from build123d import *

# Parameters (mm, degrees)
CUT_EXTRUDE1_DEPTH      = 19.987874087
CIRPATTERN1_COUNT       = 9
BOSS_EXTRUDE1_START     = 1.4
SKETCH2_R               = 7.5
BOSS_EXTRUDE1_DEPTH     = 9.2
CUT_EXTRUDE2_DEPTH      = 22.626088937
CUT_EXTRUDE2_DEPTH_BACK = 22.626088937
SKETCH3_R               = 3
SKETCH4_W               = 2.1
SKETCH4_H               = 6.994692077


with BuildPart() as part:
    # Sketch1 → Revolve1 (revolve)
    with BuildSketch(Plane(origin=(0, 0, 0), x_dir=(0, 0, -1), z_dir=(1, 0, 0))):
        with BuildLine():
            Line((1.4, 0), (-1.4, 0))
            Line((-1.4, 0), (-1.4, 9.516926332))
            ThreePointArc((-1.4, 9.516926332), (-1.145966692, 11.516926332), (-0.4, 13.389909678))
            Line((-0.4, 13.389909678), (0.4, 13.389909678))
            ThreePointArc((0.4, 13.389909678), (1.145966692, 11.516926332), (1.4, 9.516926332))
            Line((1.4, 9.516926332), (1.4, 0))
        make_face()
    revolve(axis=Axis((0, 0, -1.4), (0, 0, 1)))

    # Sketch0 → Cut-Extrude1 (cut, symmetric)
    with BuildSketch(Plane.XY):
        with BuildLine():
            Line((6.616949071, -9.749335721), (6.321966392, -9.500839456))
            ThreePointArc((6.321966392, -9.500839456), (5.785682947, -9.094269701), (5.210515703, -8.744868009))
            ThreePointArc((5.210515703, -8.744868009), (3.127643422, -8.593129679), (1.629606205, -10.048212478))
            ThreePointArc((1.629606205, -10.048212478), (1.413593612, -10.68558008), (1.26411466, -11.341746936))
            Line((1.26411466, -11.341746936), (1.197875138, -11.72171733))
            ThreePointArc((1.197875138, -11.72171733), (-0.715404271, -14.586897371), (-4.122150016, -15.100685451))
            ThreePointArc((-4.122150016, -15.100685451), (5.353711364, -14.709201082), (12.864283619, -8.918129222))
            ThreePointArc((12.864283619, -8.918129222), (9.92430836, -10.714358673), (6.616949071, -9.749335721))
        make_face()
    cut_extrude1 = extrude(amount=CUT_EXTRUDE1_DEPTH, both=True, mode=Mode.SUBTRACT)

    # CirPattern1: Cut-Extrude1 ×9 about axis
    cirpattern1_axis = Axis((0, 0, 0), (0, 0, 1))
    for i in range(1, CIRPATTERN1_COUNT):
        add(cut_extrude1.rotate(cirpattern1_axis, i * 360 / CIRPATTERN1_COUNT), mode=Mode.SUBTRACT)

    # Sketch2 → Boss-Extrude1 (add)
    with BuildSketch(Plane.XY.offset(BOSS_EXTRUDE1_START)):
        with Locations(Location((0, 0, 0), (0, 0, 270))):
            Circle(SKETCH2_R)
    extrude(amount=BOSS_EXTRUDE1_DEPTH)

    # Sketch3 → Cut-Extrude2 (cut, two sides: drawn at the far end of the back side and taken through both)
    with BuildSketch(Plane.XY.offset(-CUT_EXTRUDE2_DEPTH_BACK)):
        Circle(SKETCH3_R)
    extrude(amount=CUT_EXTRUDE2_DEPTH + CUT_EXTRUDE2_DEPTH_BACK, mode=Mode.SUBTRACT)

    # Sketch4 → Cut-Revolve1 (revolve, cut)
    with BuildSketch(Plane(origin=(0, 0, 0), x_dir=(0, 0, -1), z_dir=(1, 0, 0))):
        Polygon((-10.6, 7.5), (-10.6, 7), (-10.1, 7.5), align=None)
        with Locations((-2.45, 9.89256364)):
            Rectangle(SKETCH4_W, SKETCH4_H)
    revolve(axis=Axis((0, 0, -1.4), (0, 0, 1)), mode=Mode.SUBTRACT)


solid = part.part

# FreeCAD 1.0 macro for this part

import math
import FreeCAD as App
import Part
import Sketcher


def add_polygon(sketch, points):
    """Adds a closed chain of lines whose ends are joined by coincident constraints."""
    first, n = sketch.GeometryCount, len(points)
    for a, b in zip(points, points[1:] + points[:1]):
        sketch.addGeometry(Part.LineSegment(App.Vector(*a, 0), App.Vector(*b, 0)), False)
    for i in range(n):
        sketch.addConstraint(Sketcher.Constraint("Coincident", first + i, 2, first + (i + 1) % n, 1))

doc = App.newDocument("Part")
body = doc.addObject("PartDesign::Body", "Body")

sketch1 = body.newObject("Sketcher::SketchObject", "Sketch")
sketch1.AttachmentSupport = (doc.getObject("YZ_Plane"), [""])
sketch1.MapMode = "FlatFace"
sketch1.addGeometry(Part.LineSegment(App.Vector(0, 1.4, 0), App.Vector(0, -1.4, 0)), False)
sketch1.addGeometry(Part.LineSegment(App.Vector(0, -1.4, 0), App.Vector(9.516926, -1.4, 0)), False)
sketch1.addGeometry(Part.ArcOfCircle(Part.Circle(App.Vector(9.516926, 6.6, 0), App.Vector(0, 0, 1), 8), math.radians(-90), math.radians(-61.044976)), False)
sketch1.addGeometry(Part.LineSegment(App.Vector(13.38991, -0.4, 0), App.Vector(13.38991, 0.4, 0)), False)
sketch1.addGeometry(Part.ArcOfCircle(Part.Circle(App.Vector(9.516926, -6.6, 0), App.Vector(0, 0, 1), 8), math.radians(61.044976), math.radians(90)), False)
sketch1.addGeometry(Part.LineSegment(App.Vector(9.516926, 1.4, 0), App.Vector(0, 1.4, 0)), False)
sketch1.addConstraint(Sketcher.Constraint("Coincident", 0, 2, 1, 1))
sketch1.addConstraint(Sketcher.Constraint("Tangent", 1, 2, 2, 1))
sketch1.addConstraint(Sketcher.Constraint("Coincident", 2, 2, 3, 1))
sketch1.addConstraint(Sketcher.Constraint("Coincident", 3, 2, 4, 1))
sketch1.addConstraint(Sketcher.Constraint("Tangent", 4, 2, 5, 1))
sketch1.addConstraint(Sketcher.Constraint("Coincident", 5, 2, 0, 1))
sketch1.addConstraint(Sketcher.Constraint("Vertical", 0))
sketch1.addConstraint(Sketcher.Constraint("Horizontal", 1))
sketch1.addConstraint(Sketcher.Constraint("Vertical", 3))
sketch1.addConstraint(Sketcher.Constraint("Horizontal", 5))
sketch1.addConstraint(Sketcher.Constraint("Equal", 2, 4))
sketch1.addConstraint(Sketcher.Constraint("Symmetric", 0, 2, 5, 2, -1, 1))
sketch1.addConstraint(Sketcher.Constraint("Vertical", 2, 3, 4, 3))
sketch1.addConstraint(Sketcher.Constraint("Radius", 2, 8.0))
sketch1.addConstraint(Sketcher.Constraint("DistanceY", 0, 2, 0, 1, 2.8))
sketch1.addConstraint(Sketcher.Constraint("DistanceY", 3, 1, 3, 2, 0.8))
sketch1.addConstraint(Sketcher.Constraint("DistanceX", 1, 1, 1, 2, 9.516926))
revolution = body.newObject("PartDesign::Revolution", "Revolution")
revolution.Profile = sketch1
revolution.ReferenceAxis = (sketch1, ["V_Axis"])
revolution.Angle = 360

sketch2 = body.newObject("Sketcher::SketchObject", "Sketch001")
sketch2.AttachmentSupport = (doc.getObject("XY_Plane"), [""])
sketch2.MapMode = "FlatFace"
sketch2.addGeometry(Part.LineSegment(App.Vector(6.616949, -9.749336, 0), App.Vector(6.321966, -9.500839, 0)), False)
sketch2.addGeometry(Part.ArcOfCircle(Part.Circle(App.Vector(2.101599, -14.510715, 0), App.Vector(0, 0, 1), 6.5506), math.radians(49.888889), math.radians(61.666667)), False)
sketch2.addGeometry(Part.ArcOfCircle(Part.Circle(App.Vector(4, -10.98991, 0), App.Vector(0, 0, 1), 2.5506), math.radians(61.666667), math.radians(158.333333)), False)
sketch2.addGeometry(Part.ArcOfCircle(Part.Circle(App.Vector(7.71739, -12.466734, 0), App.Vector(0, 0, 1), 6.5506), math.radians(158.333333), math.radians(170.111111)), False)
sketch2.addGeometry(Part.LineSegment(App.Vector(1.264115, -11.341747, 0), App.Vector(1.197875, -11.721717, 0)), False)
sketch2.addGeometry(Part.ArcOfCircle(Part.Circle(App.Vector(-3, -10.98991, 0), App.Vector(0, 0, 1), 4.261185), math.radians(-105.268472), math.radians(-9.888889)), False)
sketch2.addGeometry(Part.ArcOfCircle(Part.Circle(App.Vector(0, 0, 0), App.Vector(0, 0, 1), 15.653205), math.radians(-105.268472), math.radians(-34.731528)), False)
sketch2.addGeometry(Part.ArcOfCircle(Part.Circle(App.Vector(9.362311, -6.490396, 0), App.Vector(0, 0, 1), 4.261185), math.radians(-130.111111), math.radians(-34.731528)), False)
sketch2.addConstraint(Sketcher.Constraint("Tangent", 0, 2, 1, 1))
sketch2.addConstraint(Sketcher.Constraint("Tangent", 1, 2, 2, 1))
sketch2.addConstraint(Sketcher.Constraint("Tangent", 2, 2, 3, 1))
sketch2.addConstraint(Sketcher.Constraint("Tangent", 3, 2, 4, 1))
sketch2.addConstraint(Sketcher.Constraint("Tangent", 4, 2, 5, 2))
sketch2.addConstraint(Sketcher.Constraint("Tangent", 5, 1, 6, 1))
sketch2.addConstraint(Sketcher.Constraint("Tangent", 6, 2, 7, 2))
sketch2.addConstraint(Sketcher.Constraint("Tangent", 7, 1, 0, 1))
sketch2.addConstraint(Sketcher.Constraint("Coincident", 6, 3, -1, 1))
sketch2.addConstraint(Sketcher.Constraint("Equal", 1, 3))
sketch2.addConstraint(Sketcher.Constraint("Equal", 5, 7))
sketch2.addConstraint(Sketcher.Constraint("Horizontal", 2, 3, 5, 3))
sketch2.addConstraint(Sketcher.Constraint("Equal", 0, 4))
sketch2.addConstraint(Sketcher.Constraint("DistanceX", -1, 1, 2, 3, 4.0))
sketch2.addConstraint(Sketcher.Constraint("DistanceX", 5, 3, -1, 1, 3.0))
sketch2.addConstraint(Sketcher.Constraint("Radius", 1, 6.5506))
sketch2.addConstraint(Sketcher.Constraint("Radius", 2, 2.5506))
sketch2.addConstraint(Sketcher.Constraint("Radius", 5, 4.261185))
sketch2.addConstraint(Sketcher.Constraint("Radius", 6, 15.653205))
sketch2.addConstraint(Sketcher.Constraint("Distance", 0, 0.385701))
sketch2.addConstraint(Sketcher.Constraint("DistanceX", -1, 1, 1, 3, 2.101599))
pocket1 = body.newObject("PartDesign::Pocket", "Pocket")
pocket1.Profile = sketch2
pocket1.Length = 39.975748
pocket1.Midplane = True
doc.recompute()

polarpattern = body.newObject("PartDesign::PolarPattern", "PolarPattern")
polarpattern.Originals = [pocket1]
polarpattern.Axis = (doc.getObject("Z_Axis"), [""])
polarpattern.Angle = 360
polarpattern.Occurrences = 9
body.Tip = polarpattern

sketch3 = body.newObject("Sketcher::SketchObject", "Sketch002")
sketch3.AttachmentSupport = (doc.getObject("XY_Plane"), [""])
sketch3.MapMode = "FlatFace"
sketch3.AttachmentOffset = App.Placement(App.Vector(0, 0, 1.4), App.Rotation())
sketch3.addGeometry(Part.Circle(App.Vector(0, 0, 0), App.Vector(0, 0, 1), 7.5), False)
sketch3.addConstraint(Sketcher.Constraint("Coincident", 0, 3, -1, 1))
sketch3.addConstraint(Sketcher.Constraint("Diameter", 0, 15.0))
pad1 = body.newObject("PartDesign::Pad", "Pad")
pad1.Profile = sketch3
pad1.Length = 9.2

sketch4 = body.newObject("Sketcher::SketchObject", "Sketch003")
sketch4.AttachmentSupport = (doc.getObject("XY_Plane"), [""])
sketch4.MapMode = "FlatFace"
sketch4.addGeometry(Part.Circle(App.Vector(0, 0, 0), App.Vector(0, 0, 1), 3), False)
sketch4.addConstraint(Sketcher.Constraint("Coincident", 0, 3, -1, 1))
sketch4.addConstraint(Sketcher.Constraint("Diameter", 0, 6.0))
pocket2 = body.newObject("PartDesign::Pocket", "Pocket001")
pocket2.Profile = sketch4
pocket2.Type = "ThroughAll"
pocket2.Midplane = True

sketch5 = body.newObject("Sketcher::SketchObject", "Sketch004")
sketch5.AttachmentSupport = (doc.getObject("YZ_Plane"), [""])
sketch5.MapMode = "FlatFace"
add_polygon(sketch5, [(7.5, 10.6), (7, 10.6), (7.5, 10.1)])
add_polygon(sketch5, [(13.38991, 3.5), (6.395218, 3.5), (6.395218, 1.4), (13.38991, 1.4)])
sketch5.addConstraint(Sketcher.Constraint("Horizontal", 0))
sketch5.addConstraint(Sketcher.Constraint("Vertical", 2))
sketch5.addConstraint(Sketcher.Constraint("Horizontal", 3))
sketch5.addConstraint(Sketcher.Constraint("Vertical", 4))
sketch5.addConstraint(Sketcher.Constraint("Horizontal", 5))
sketch5.addConstraint(Sketcher.Constraint("Vertical", 6))
sketch5.addConstraint(Sketcher.Constraint("Equal", 0, 2))
sketch5.addConstraint(Sketcher.Constraint("DistanceX", 0, 2, 0, 1, 0.5))
sketch5.addConstraint(Sketcher.Constraint("DistanceY", 4, 2, 4, 1, 2.1))
sketch5.addConstraint(Sketcher.Constraint("DistanceX", -1, 1, 0, 2, 7.0))
sketch5.addConstraint(Sketcher.Constraint("DistanceY", -1, 1, 0, 2, 10.6))
sketch5.addConstraint(Sketcher.Constraint("DistanceY", -1, 1, 3, 2, 3.5))
sketch5.addConstraint(Sketcher.Constraint("DistanceX", 3, 2, 3, 1, 6.994692))
sketch5.addConstraint(Sketcher.Constraint("DistanceX", -1, 1, 5, 2, 13.38991))
groove = body.newObject("PartDesign::Groove", "Groove")
groove.Profile = sketch5
groove.ReferenceAxis = (sketch5, ["V_Axis"])
groove.Angle = 360

doc.recompute()
